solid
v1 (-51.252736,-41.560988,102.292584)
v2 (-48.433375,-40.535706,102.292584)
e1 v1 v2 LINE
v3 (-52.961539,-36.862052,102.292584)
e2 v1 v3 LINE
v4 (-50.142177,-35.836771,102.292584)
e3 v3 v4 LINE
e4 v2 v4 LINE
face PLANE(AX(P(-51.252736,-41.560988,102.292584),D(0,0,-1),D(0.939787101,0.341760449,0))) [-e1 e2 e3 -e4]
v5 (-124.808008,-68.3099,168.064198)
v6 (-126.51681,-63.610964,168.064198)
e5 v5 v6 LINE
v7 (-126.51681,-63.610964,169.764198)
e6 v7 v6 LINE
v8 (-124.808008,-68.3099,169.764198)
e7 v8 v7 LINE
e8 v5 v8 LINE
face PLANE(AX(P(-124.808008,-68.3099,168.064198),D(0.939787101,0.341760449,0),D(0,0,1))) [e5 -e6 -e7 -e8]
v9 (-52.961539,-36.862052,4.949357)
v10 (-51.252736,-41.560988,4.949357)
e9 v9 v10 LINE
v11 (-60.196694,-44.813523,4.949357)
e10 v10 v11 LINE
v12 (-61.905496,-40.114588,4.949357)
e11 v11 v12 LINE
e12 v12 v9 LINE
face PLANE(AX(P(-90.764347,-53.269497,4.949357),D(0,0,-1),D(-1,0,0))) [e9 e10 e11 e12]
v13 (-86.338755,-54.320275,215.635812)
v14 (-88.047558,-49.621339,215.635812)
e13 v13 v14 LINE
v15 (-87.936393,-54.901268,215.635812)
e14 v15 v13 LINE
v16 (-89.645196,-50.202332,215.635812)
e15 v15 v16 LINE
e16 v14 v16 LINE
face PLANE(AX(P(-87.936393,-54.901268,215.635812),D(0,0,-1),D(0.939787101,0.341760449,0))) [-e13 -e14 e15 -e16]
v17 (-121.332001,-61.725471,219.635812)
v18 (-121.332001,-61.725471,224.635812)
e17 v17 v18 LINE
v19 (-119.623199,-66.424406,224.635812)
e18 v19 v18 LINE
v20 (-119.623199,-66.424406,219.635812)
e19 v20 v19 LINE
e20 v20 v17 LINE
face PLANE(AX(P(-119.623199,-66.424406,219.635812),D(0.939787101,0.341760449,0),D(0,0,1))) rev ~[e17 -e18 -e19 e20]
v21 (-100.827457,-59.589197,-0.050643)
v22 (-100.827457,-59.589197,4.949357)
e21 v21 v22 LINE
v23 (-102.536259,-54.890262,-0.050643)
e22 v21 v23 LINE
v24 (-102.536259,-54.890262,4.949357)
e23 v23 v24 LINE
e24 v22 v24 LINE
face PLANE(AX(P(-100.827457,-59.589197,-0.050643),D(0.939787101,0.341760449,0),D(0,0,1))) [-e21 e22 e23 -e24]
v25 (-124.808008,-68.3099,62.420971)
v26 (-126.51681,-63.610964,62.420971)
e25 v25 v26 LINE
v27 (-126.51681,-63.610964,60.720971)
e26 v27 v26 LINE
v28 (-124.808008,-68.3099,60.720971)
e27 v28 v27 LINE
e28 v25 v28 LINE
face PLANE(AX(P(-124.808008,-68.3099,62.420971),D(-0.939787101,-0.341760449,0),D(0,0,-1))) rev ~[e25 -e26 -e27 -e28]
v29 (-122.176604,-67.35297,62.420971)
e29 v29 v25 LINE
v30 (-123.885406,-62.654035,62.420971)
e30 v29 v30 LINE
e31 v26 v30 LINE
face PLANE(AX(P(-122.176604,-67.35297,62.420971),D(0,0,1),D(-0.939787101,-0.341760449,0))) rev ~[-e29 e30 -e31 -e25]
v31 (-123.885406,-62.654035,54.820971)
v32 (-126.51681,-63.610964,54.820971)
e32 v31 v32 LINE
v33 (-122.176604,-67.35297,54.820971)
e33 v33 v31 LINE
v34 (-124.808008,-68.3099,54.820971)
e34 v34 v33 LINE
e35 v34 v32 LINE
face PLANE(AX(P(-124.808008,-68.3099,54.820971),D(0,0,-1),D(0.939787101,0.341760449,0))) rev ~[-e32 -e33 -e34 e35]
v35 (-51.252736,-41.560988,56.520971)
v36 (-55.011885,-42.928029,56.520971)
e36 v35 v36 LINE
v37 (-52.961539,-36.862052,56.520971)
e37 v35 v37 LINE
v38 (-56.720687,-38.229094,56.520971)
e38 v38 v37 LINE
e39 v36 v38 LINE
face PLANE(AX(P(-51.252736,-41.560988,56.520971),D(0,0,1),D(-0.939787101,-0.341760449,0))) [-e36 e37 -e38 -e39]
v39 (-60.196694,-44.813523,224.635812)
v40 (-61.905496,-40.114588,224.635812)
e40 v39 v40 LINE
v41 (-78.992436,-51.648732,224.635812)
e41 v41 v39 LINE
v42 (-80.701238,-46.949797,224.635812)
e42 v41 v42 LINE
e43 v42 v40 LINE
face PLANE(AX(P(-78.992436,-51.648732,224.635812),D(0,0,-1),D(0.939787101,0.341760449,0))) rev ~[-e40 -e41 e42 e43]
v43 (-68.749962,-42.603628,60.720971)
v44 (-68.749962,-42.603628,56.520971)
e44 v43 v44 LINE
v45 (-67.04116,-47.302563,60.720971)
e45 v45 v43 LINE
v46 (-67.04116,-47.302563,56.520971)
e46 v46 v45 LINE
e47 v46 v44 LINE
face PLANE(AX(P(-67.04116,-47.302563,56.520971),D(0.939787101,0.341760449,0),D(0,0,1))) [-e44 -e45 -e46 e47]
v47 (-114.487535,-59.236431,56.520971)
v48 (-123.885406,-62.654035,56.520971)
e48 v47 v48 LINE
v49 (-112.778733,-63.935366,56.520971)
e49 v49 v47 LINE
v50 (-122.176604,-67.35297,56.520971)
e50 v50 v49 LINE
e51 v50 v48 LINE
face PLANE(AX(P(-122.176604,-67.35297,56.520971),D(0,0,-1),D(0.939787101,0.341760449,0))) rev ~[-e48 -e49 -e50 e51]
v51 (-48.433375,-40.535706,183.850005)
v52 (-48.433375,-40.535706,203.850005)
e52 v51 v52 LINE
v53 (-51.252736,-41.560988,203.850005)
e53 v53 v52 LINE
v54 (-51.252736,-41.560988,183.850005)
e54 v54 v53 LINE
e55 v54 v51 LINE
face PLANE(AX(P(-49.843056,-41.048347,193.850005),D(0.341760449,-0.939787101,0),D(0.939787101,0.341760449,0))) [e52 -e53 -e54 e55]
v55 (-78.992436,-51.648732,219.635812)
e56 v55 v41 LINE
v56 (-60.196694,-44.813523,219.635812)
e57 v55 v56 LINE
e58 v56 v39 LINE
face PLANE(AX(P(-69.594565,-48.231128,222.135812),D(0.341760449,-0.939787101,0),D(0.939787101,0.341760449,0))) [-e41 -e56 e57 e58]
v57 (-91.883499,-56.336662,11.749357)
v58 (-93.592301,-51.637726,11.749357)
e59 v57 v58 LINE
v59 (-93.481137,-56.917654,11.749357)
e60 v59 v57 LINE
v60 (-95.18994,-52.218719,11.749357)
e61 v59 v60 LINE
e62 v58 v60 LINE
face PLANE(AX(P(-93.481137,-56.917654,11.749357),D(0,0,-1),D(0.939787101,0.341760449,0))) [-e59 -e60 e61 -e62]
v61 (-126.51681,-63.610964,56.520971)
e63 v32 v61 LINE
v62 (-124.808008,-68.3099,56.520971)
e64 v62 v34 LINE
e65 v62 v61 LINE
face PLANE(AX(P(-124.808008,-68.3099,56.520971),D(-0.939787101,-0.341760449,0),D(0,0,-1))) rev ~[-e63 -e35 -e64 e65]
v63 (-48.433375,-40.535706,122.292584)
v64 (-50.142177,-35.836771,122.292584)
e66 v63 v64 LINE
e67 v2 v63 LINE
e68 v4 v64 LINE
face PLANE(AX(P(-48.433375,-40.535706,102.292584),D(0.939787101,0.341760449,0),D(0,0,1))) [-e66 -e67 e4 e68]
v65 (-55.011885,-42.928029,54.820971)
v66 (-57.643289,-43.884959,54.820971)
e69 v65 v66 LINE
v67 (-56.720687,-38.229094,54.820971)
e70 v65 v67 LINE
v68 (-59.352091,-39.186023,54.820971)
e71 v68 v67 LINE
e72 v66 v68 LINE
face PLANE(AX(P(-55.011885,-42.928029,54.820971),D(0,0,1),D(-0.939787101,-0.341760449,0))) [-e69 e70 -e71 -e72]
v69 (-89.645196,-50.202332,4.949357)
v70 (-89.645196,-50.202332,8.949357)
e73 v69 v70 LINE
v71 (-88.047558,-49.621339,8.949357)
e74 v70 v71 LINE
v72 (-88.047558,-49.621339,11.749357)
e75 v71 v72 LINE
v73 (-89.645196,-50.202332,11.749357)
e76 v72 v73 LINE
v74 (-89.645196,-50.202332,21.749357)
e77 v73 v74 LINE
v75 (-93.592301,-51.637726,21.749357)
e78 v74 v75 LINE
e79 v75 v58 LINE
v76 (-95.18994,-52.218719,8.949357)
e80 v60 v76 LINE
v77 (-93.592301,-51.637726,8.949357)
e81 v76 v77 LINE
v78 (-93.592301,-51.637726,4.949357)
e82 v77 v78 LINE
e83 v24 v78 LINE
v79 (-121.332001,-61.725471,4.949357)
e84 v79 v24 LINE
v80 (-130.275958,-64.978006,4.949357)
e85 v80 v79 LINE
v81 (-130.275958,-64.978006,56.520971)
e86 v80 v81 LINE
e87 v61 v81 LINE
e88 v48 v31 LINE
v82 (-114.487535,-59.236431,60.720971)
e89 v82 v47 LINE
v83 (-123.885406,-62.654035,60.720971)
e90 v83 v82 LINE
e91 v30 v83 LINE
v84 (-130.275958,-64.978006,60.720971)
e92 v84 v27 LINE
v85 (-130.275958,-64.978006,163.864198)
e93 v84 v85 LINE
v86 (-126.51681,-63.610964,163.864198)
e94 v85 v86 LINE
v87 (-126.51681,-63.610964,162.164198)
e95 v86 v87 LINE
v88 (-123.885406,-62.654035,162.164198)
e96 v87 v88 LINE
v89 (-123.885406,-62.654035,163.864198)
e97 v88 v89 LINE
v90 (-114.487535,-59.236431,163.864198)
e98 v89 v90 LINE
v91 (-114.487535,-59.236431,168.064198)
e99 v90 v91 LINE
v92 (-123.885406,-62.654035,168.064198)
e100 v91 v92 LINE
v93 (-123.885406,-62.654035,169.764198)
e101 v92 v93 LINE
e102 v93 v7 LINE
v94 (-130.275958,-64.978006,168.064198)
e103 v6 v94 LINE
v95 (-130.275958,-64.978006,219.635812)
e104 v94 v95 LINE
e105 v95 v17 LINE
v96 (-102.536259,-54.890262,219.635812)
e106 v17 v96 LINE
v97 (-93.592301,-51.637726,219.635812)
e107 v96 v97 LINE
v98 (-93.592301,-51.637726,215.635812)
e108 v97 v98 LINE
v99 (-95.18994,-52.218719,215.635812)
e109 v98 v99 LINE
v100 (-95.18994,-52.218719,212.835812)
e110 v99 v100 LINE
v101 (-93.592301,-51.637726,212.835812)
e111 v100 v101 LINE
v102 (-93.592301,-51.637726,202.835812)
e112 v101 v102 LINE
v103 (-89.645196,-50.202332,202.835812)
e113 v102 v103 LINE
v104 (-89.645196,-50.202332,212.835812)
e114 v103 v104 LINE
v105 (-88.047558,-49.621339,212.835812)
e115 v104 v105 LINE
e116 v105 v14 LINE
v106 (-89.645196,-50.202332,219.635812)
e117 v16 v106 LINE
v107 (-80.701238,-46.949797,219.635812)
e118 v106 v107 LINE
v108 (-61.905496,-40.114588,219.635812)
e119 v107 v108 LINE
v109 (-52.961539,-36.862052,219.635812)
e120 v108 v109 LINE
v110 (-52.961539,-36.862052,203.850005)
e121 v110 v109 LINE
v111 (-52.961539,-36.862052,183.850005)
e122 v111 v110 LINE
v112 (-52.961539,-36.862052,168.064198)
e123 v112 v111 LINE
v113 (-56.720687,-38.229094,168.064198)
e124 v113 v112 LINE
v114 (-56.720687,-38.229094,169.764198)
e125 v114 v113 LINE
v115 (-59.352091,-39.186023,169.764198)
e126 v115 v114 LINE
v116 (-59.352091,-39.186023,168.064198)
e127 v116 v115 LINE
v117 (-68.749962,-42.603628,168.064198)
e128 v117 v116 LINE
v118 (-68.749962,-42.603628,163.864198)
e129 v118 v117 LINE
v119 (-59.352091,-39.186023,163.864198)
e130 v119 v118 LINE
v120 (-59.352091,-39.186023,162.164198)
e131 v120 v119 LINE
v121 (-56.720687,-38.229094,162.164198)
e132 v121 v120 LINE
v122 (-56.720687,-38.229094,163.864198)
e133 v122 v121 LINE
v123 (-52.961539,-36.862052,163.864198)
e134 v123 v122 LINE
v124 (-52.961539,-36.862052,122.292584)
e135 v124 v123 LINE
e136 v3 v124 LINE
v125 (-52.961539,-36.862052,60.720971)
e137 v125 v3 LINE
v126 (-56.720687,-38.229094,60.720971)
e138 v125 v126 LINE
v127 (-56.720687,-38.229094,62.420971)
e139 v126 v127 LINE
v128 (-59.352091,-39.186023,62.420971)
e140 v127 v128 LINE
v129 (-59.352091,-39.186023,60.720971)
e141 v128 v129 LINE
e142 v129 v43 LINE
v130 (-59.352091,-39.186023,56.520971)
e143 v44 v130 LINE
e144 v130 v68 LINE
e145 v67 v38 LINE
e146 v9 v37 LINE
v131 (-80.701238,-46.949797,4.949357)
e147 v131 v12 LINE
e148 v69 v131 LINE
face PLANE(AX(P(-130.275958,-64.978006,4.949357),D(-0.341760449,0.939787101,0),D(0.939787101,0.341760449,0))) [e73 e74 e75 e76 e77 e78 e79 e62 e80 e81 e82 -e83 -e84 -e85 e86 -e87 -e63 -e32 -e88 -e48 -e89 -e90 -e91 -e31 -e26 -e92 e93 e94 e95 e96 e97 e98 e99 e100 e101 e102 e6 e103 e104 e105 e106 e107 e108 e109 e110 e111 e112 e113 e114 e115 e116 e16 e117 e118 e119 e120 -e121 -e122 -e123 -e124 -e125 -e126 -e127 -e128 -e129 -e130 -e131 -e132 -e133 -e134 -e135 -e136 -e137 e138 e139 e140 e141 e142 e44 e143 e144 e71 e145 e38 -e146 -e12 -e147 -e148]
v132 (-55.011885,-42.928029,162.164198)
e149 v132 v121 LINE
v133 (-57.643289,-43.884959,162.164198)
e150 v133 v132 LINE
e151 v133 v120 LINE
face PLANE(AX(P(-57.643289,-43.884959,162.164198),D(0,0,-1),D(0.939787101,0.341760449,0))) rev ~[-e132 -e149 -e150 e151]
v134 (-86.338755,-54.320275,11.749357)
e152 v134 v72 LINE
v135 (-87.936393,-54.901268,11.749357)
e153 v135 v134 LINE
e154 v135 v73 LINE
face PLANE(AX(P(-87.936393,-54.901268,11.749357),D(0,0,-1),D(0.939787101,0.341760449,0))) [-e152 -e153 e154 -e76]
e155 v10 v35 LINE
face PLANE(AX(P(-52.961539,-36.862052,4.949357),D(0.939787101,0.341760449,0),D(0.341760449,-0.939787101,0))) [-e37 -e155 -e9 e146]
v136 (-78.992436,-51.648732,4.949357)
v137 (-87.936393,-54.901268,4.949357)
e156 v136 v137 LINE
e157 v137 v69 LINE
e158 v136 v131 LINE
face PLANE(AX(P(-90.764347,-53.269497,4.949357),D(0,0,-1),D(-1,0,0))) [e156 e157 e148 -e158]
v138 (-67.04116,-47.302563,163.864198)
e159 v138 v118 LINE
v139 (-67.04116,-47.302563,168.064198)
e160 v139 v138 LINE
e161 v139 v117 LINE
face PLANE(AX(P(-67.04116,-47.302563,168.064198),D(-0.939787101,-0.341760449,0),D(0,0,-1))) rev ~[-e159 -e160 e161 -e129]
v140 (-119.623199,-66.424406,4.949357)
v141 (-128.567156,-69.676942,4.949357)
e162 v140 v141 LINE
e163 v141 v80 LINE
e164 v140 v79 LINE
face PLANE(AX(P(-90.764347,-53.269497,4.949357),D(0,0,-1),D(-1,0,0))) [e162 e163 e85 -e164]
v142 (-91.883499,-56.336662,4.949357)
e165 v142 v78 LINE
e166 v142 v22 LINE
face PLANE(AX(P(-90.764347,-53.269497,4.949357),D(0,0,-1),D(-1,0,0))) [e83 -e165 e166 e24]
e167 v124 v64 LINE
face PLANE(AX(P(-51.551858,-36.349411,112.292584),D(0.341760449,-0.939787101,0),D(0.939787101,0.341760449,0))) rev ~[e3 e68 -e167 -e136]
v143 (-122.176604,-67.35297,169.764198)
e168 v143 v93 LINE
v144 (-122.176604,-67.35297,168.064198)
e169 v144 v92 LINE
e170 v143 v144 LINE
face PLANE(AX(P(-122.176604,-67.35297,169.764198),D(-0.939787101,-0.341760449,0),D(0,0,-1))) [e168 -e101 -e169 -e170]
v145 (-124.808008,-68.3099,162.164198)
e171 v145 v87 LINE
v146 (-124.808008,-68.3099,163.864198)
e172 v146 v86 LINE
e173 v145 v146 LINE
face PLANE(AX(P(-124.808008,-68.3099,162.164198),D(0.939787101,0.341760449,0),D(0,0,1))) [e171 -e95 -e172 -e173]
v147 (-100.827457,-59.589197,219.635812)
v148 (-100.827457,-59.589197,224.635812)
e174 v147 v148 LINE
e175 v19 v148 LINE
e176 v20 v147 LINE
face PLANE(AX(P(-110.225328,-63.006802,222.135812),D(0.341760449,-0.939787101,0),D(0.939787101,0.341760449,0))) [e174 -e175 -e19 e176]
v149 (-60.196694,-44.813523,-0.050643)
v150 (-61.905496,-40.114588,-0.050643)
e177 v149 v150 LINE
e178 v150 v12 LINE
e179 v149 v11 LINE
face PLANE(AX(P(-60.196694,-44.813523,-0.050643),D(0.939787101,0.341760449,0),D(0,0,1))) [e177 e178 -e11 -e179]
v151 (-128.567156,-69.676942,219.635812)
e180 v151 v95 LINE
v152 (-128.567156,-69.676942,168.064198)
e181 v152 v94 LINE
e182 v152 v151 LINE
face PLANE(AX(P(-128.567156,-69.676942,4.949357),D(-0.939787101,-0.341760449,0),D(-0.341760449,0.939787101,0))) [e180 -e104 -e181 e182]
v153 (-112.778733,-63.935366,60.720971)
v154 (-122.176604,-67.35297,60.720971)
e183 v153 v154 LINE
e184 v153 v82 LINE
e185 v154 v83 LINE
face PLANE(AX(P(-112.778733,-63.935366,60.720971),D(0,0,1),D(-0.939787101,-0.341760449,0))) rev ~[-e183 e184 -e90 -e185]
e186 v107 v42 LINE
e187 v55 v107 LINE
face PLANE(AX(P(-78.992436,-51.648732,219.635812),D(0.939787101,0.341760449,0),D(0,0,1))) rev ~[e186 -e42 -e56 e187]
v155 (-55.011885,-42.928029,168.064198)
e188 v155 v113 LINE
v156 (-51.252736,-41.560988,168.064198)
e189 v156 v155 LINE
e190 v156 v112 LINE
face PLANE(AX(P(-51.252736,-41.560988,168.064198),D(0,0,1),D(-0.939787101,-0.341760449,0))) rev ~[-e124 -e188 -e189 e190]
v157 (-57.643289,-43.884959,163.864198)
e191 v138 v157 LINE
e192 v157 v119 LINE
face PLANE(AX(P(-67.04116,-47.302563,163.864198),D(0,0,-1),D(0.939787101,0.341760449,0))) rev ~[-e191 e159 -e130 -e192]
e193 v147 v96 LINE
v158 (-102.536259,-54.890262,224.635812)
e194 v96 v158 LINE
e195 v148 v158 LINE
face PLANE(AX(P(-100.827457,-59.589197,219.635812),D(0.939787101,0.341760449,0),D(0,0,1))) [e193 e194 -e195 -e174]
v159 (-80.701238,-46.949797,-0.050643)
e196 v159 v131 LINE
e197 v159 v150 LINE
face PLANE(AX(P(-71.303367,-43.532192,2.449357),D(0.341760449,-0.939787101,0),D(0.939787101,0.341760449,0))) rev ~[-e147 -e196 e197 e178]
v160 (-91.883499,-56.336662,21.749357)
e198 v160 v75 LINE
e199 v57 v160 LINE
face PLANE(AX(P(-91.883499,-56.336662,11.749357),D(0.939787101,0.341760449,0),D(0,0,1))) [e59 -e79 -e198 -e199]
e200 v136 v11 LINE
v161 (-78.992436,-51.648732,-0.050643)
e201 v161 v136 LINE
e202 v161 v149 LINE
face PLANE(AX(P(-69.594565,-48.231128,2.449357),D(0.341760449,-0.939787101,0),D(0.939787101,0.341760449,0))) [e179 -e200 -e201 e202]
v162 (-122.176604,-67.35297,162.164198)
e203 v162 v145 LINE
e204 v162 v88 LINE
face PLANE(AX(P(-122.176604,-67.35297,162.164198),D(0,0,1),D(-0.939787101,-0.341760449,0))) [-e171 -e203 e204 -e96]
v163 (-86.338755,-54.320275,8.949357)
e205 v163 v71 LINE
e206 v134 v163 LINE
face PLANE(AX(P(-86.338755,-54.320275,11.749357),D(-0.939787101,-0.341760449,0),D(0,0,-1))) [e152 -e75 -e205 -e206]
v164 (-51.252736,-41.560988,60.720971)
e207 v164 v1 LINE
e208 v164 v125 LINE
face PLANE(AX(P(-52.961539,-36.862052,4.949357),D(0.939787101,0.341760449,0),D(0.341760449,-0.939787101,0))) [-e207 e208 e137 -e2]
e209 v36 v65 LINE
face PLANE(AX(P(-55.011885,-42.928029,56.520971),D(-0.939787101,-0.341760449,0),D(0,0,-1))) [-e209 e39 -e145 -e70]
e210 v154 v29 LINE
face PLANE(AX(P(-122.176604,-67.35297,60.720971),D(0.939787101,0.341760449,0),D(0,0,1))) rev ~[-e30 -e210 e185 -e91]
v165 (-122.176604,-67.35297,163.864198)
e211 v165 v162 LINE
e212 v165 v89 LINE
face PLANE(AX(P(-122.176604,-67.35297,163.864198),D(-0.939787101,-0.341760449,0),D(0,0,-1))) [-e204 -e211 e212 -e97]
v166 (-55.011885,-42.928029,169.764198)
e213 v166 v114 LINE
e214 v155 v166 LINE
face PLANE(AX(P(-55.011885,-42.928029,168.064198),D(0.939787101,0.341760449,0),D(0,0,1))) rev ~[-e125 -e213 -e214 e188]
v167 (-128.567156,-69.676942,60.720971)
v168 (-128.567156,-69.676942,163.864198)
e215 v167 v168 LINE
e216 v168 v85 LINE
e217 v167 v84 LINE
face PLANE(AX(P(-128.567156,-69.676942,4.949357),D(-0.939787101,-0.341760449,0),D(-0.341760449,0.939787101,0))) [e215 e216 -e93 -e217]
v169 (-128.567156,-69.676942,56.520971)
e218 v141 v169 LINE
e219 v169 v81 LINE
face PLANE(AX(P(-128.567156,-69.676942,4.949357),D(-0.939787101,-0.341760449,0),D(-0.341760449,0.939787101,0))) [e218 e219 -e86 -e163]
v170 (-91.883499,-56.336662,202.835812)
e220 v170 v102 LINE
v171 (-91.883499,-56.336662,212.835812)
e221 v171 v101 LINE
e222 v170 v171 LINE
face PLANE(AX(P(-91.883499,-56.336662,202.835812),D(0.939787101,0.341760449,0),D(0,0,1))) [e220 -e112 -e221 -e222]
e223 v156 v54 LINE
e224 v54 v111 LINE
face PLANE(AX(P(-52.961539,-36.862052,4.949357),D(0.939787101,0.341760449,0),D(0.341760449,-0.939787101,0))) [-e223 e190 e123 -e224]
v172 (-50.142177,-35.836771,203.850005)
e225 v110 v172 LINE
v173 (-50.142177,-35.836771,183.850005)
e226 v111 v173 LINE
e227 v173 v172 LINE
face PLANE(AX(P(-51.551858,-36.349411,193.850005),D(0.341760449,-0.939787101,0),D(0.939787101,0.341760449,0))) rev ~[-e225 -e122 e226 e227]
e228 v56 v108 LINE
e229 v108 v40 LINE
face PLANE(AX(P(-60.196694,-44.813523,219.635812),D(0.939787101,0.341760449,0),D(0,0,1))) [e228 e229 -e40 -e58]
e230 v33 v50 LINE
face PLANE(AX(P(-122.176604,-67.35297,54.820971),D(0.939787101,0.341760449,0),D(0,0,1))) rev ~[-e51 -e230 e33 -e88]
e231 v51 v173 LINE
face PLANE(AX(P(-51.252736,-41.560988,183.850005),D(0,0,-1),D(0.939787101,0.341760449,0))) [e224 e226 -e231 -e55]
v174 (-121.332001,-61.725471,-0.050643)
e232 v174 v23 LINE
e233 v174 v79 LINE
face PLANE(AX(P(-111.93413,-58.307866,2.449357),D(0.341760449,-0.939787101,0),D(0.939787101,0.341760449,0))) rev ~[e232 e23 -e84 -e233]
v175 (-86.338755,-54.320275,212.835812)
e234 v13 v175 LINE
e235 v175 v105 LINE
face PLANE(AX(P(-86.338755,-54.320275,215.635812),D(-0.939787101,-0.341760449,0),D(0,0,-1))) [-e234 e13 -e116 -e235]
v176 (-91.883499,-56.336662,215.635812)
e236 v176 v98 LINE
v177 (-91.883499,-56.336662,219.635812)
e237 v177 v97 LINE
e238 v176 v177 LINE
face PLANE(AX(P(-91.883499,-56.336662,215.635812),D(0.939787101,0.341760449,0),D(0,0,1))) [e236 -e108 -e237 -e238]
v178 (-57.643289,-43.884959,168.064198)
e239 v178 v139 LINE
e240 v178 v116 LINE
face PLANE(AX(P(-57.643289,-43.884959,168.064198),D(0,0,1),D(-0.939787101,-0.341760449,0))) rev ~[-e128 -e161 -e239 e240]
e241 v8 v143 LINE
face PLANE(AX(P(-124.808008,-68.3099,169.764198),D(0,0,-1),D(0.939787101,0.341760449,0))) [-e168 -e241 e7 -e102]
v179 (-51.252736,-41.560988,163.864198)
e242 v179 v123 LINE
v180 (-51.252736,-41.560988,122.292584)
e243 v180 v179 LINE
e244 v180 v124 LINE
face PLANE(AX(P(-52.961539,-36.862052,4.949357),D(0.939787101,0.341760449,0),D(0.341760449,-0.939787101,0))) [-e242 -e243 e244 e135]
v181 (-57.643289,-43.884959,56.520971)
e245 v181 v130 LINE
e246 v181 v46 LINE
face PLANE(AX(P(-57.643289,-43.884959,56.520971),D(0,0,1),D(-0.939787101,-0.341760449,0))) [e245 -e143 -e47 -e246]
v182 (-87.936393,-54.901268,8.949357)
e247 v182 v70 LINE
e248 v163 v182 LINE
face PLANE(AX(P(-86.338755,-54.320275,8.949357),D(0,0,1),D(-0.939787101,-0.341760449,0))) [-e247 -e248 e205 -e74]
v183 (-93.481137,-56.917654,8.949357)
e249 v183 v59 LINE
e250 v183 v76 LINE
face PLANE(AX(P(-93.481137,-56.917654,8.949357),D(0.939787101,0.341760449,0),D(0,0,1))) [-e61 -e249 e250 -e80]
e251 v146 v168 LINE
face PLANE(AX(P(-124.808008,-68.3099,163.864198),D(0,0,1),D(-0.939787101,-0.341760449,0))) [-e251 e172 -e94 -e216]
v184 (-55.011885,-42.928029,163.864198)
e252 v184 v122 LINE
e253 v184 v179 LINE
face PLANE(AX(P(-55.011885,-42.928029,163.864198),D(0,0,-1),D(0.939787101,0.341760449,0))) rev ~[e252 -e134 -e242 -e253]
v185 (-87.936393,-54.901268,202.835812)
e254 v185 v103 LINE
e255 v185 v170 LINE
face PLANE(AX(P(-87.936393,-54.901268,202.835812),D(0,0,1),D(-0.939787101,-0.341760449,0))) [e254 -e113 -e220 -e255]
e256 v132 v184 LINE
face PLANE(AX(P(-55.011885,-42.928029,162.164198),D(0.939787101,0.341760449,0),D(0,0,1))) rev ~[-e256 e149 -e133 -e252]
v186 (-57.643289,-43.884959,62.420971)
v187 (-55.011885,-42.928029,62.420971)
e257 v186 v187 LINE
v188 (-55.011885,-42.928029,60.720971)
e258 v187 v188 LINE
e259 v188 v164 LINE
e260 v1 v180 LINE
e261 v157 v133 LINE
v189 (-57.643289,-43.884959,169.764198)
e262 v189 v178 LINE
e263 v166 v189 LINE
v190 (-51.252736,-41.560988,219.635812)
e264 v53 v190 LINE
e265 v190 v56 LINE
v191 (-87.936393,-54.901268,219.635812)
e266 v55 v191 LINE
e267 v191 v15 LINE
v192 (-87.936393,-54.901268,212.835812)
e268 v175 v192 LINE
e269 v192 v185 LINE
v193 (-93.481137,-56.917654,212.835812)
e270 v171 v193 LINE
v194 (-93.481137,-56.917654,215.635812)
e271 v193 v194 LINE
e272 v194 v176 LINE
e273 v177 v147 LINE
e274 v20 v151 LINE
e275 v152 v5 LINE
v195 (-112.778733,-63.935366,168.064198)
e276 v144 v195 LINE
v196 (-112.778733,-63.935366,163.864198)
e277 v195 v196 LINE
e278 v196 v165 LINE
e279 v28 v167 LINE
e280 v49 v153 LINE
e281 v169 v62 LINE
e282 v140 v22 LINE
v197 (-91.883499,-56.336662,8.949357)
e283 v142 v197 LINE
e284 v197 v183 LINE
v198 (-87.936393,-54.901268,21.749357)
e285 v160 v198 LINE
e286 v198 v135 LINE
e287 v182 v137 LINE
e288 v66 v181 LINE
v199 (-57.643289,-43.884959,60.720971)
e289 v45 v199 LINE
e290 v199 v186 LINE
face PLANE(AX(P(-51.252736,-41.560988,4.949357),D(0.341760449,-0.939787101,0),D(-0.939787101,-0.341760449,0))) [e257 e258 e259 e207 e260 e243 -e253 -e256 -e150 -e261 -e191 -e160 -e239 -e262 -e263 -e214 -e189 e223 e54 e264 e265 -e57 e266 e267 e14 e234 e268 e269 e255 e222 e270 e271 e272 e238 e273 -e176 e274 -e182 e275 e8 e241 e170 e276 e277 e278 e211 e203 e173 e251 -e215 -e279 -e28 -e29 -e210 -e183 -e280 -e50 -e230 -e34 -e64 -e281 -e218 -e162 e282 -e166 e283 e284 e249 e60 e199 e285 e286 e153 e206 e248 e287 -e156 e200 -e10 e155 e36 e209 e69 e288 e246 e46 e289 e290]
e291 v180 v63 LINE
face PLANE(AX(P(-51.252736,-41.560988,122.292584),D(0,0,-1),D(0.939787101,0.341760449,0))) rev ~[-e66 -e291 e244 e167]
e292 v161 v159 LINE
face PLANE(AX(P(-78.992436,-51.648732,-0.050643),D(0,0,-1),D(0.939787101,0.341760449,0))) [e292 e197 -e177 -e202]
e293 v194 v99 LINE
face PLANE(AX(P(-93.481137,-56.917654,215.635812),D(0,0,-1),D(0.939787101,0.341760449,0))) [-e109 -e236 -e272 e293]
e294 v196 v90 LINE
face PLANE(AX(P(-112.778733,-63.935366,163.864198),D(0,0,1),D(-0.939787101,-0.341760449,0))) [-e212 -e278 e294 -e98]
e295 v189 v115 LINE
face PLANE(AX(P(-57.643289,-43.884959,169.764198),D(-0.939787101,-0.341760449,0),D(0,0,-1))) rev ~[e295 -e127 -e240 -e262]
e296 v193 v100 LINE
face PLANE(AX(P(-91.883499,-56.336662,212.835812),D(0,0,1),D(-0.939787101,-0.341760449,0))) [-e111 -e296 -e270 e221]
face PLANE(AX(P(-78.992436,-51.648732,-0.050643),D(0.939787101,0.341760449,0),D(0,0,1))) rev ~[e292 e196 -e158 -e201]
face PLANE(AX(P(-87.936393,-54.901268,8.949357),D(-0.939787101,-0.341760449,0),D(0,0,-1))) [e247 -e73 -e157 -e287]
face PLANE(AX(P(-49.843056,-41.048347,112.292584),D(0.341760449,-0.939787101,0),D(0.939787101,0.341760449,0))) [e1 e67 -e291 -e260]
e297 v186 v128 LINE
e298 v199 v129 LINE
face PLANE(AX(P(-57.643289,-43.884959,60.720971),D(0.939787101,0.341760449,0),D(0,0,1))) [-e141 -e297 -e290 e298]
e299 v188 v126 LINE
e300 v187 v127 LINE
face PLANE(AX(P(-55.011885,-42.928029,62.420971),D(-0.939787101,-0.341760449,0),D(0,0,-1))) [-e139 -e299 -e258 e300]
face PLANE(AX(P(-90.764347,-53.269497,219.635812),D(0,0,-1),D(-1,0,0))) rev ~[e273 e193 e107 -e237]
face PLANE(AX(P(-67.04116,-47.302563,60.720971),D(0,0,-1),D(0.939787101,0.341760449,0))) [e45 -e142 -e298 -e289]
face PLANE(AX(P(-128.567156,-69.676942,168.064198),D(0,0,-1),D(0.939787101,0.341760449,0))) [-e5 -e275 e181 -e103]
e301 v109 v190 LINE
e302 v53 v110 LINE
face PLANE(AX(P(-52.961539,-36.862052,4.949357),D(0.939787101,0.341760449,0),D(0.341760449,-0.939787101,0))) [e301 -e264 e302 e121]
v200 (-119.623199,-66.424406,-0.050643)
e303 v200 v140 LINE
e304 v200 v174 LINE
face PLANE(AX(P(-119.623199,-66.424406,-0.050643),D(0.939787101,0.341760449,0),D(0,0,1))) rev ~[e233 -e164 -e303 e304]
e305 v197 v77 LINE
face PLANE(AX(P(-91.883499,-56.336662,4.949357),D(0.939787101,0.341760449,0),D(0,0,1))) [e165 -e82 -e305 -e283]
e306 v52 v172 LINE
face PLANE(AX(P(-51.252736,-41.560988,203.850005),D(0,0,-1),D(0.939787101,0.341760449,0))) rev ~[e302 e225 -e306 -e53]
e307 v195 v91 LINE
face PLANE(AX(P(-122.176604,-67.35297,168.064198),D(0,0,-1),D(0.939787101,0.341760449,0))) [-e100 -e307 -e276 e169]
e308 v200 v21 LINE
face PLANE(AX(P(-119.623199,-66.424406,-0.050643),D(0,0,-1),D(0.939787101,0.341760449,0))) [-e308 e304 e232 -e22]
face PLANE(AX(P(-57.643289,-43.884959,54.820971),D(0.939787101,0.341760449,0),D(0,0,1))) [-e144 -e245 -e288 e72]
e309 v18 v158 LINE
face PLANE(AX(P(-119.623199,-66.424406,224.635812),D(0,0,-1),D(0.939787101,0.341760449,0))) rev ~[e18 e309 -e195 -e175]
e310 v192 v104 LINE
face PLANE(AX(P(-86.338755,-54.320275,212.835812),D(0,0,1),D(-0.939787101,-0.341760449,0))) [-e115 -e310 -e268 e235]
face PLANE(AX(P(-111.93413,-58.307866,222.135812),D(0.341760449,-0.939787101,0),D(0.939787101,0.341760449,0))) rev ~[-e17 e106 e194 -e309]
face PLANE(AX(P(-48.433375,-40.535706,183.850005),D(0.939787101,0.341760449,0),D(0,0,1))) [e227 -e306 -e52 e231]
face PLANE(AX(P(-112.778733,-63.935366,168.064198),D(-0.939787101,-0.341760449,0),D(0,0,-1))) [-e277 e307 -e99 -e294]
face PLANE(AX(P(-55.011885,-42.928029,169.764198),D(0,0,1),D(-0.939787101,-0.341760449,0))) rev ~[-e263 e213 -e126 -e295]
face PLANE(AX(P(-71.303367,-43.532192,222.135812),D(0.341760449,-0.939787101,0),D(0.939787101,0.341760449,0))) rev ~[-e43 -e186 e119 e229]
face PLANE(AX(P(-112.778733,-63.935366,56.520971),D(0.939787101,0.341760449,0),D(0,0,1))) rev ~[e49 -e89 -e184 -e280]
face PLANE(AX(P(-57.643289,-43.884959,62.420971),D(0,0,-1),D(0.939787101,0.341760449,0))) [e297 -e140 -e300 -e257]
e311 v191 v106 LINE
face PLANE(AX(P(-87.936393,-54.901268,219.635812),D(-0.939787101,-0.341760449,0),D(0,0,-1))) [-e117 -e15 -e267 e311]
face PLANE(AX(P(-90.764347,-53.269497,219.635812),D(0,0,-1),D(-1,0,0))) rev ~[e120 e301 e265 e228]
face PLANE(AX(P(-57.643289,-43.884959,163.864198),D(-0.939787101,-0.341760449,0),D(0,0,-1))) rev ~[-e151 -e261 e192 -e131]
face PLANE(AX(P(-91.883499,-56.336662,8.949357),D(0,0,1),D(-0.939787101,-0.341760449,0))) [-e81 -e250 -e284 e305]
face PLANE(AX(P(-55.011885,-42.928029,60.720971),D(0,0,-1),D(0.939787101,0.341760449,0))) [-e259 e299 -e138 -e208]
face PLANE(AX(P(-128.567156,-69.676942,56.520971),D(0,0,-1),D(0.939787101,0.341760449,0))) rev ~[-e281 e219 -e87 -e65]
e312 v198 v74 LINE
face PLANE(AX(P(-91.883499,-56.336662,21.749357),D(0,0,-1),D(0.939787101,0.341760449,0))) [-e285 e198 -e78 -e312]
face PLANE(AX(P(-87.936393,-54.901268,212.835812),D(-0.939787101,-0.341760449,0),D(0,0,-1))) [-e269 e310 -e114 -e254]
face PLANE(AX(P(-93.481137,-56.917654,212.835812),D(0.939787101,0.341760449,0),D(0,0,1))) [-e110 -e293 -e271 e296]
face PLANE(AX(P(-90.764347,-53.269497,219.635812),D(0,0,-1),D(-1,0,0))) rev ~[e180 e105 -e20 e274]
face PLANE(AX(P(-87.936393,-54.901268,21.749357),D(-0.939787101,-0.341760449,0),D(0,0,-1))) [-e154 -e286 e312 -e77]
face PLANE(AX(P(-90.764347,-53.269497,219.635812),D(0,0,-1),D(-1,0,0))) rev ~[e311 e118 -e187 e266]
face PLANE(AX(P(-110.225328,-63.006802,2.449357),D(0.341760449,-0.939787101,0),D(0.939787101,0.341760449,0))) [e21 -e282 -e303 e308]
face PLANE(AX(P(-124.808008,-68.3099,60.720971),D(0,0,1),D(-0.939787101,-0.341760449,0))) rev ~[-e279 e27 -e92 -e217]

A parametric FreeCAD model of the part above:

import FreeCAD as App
import Part
import Sketcher
from FreeCAD import Vector

doc = App.newDocument("Part")
body = doc.addObject("PartDesign::Body", "Body")

sketch1 = body.newObject("Sketcher::SketchObject", "Sketch")
sketch1.AttachmentSupport = (doc.getObject("XY_Plane"), [""])
sketch1.MapMode = "FlatFace"
sketch1.AttachmentOffset = App.Placement(Vector(0, 0, 4.949357), App.Rotation())
sketch1.addGeometry([
    Part.LineSegment(Vector(-51, -42, 0), Vector(-53, -37, 0)),
    Part.LineSegment(Vector(-53, -37, 0), Vector(-130, -65, 0)),
    Part.LineSegment(Vector(-130, -65, 0), Vector(-129, -70, 0)),
    Part.LineSegment(Vector(-129, -70, 0), Vector(-51, -42, 0)),
], False)
sketch1.addConstraint([
    Sketcher.Constraint("Coincident", 0, 2, 1, 1),
    Sketcher.Constraint("Coincident", 1, 2, 2, 1),
    Sketcher.Constraint("Coincident", 2, 2, 3, 1),
    Sketcher.Constraint("Coincident", 3, 2, 0, 1),
    Sketcher.Constraint("Perpendicular", 0, 1),
    Sketcher.Constraint("Perpendicular", 1, 2),
    Sketcher.Constraint("Perpendicular", 2, 3),
    Sketcher.Constraint("Distance", 0, 5.0),
    Sketcher.Constraint("DistanceX", 0, 2, -1, 1, 52.961539),
    Sketcher.Constraint("DistanceX", 1, 2, -1, 1, 130.275958),
    Sketcher.Constraint("DistanceY", 2, 2, -1, 1, 69.676942),
    Sketcher.Constraint("DistanceY", 2, 2, 0, 2, 32.814889),
])
pad1 = body.newObject("PartDesign::Pad", "Pad")
pad1.Profile = sketch1
pad1.Length = 214.686455

sketch2 = body.newObject("Sketcher::SketchObject", "Sketch001")
sketch2.Placement = App.Placement(Vector(7.362314, -20.245196, 0), App.Rotation(Vector(-0.939787101, -0.341760449, 0), Vector(0, 0, -1), Vector(0.341760449, -0.939787101, 0), "ZXY"))
sketch2.addGeometry([
    Part.LineSegment(Vector(105.6, -4.9, 0), Vector(101.4, -4.9, 0)),
    Part.LineSegment(Vector(101.4, -4.9, 0), Vector(101.4, -8.9, 0)),
    Part.LineSegment(Vector(101.4, -8.9, 0), Vector(99.7, -8.9, 0)),
    Part.LineSegment(Vector(99.7, -8.9, 0), Vector(99.7, -11.7, 0)),
    Part.LineSegment(Vector(99.7, -11.7, 0), Vector(101.4, -11.7, 0)),
    Part.LineSegment(Vector(101.4, -11.7, 0), Vector(101.4, -21.7, 0)),
    Part.LineSegment(Vector(101.4, -21.7, 0), Vector(105.6, -21.7, 0)),
    Part.LineSegment(Vector(105.6, -21.7, 0), Vector(105.6, -11.7, 0)),
    Part.LineSegment(Vector(105.6, -11.7, 0), Vector(107.3, -11.7, 0)),
    Part.LineSegment(Vector(107.3, -11.7, 0), Vector(107.3, -8.9, 0)),
    Part.LineSegment(Vector(107.3, -8.9, 0), Vector(105.6, -8.9, 0)),
    Part.LineSegment(Vector(105.6, -8.9, 0), Vector(105.6, -4.9, 0)),
    Part.LineSegment(Vector(62.4, -56.5, 0), Vector(62.4, -60.7, 0)),
    Part.LineSegment(Vector(62.4, -60.7, 0), Vector(66.4, -60.7, 0)),
    Part.LineSegment(Vector(66.4, -60.7, 0), Vector(66.4, -62.4, 0)),
    Part.LineSegment(Vector(66.4, -62.4, 0), Vector(69.2, -62.4, 0)),
    Part.LineSegment(Vector(69.2, -62.4, 0), Vector(69.2, -60.7, 0)),
    Part.LineSegment(Vector(69.2, -60.7, 0), Vector(79.2, -60.7, 0)),
    Part.LineSegment(Vector(79.2, -60.7, 0), Vector(79.2, -56.5, 0)),
    Part.LineSegment(Vector(79.2, -56.5, 0), Vector(69.2, -56.5, 0)),
    Part.LineSegment(Vector(69.2, -56.5, 0), Vector(69.2, -54.8, 0)),
    Part.LineSegment(Vector(69.2, -54.8, 0), Vector(66.4, -54.8, 0)),
    Part.LineSegment(Vector(66.4, -54.8, 0), Vector(66.4, -56.5, 0)),
    Part.LineSegment(Vector(66.4, -56.5, 0), Vector(62.4, -56.5, 0)),
    Part.LineSegment(Vector(101.4, -219.6, 0), Vector(105.6, -219.6, 0)),
    Part.LineSegment(Vector(105.6, -219.6, 0), Vector(105.6, -215.6, 0)),
    Part.LineSegment(Vector(105.6, -215.6, 0), Vector(107.3, -215.6, 0)),
    Part.LineSegment(Vector(107.3, -215.6, 0), Vector(107.3, -212.8, 0)),
    Part.LineSegment(Vector(107.3, -212.8, 0), Vector(105.6, -212.8, 0)),
    Part.LineSegment(Vector(105.6, -212.8, 0), Vector(105.6, -202.8, 0)),
    Part.LineSegment(Vector(105.6, -202.8, 0), Vector(101.4, -202.8, 0)),
    Part.LineSegment(Vector(101.4, -202.8, 0), Vector(101.4, -212.8, 0)),
    Part.LineSegment(Vector(101.4, -212.8, 0), Vector(99.7, -212.8, 0)),
    Part.LineSegment(Vector(99.7, -212.8, 0), Vector(99.7, -215.6, 0)),
    Part.LineSegment(Vector(99.7, -215.6, 0), Vector(101.4, -215.6, 0)),
    Part.LineSegment(Vector(101.4, -215.6, 0), Vector(101.4, -219.6, 0)),
    Part.LineSegment(Vector(66.4, -168.1, 0), Vector(66.4, -169.8, 0)),
    Part.LineSegment(Vector(66.4, -169.8, 0), Vector(69.2, -169.8, 0)),
    Part.LineSegment(Vector(69.2, -169.8, 0), Vector(69.2, -168.1, 0)),
    Part.LineSegment(Vector(69.2, -168.1, 0), Vector(79.2, -168.1, 0)),
    Part.LineSegment(Vector(79.2, -168.1, 0), Vector(79.2, -163.9, 0)),
    Part.LineSegment(Vector(79.2, -163.9, 0), Vector(69.2, -163.9, 0)),
    Part.LineSegment(Vector(69.2, -163.9, 0), Vector(69.2, -162.2, 0)),
    Part.LineSegment(Vector(69.2, -162.2, 0), Vector(66.4, -162.2, 0)),
    Part.LineSegment(Vector(66.4, -162.2, 0), Vector(66.4, -163.9, 0)),
    Part.LineSegment(Vector(66.4, -163.9, 0), Vector(62.4, -163.9, 0)),
    Part.LineSegment(Vector(62.4, -163.9, 0), Vector(62.4, -168.1, 0)),
    Part.LineSegment(Vector(62.4, -168.1, 0), Vector(66.4, -168.1, 0)),
    Part.LineSegment(Vector(144.6, -168.1, 0), Vector(144.6, -163.9, 0)),
    Part.LineSegment(Vector(144.6, -163.9, 0), Vector(140.6, -163.9, 0)),
    Part.LineSegment(Vector(140.6, -163.9, 0), Vector(140.6, -162.2, 0)),
    Part.LineSegment(Vector(140.6, -162.2, 0), Vector(137.8, -162.2, 0)),
    Part.LineSegment(Vector(137.8, -162.2, 0), Vector(137.8, -163.9, 0)),
    Part.LineSegment(Vector(137.8, -163.9, 0), Vector(127.8, -163.9, 0)),
    Part.LineSegment(Vector(127.8, -163.9, 0), Vector(127.8, -168.1, 0)),
    Part.LineSegment(Vector(127.8, -168.1, 0), Vector(137.8, -168.1, 0)),
    Part.LineSegment(Vector(137.8, -168.1, 0), Vector(137.8, -169.8, 0)),
    Part.LineSegment(Vector(137.8, -169.8, 0), Vector(140.6, -169.8, 0)),
    Part.LineSegment(Vector(140.6, -169.8, 0), Vector(140.6, -168.1, 0)),
    Part.LineSegment(Vector(140.6, -168.1, 0), Vector(144.6, -168.1, 0)),
    Part.LineSegment(Vector(140.6, -56.5, 0), Vector(140.6, -54.8, 0)),
    Part.LineSegment(Vector(140.6, -54.8, 0), Vector(137.8, -54.8, 0)),
    Part.LineSegment(Vector(137.8, -54.8, 0), Vector(137.8, -56.5, 0)),
    Part.LineSegment(Vector(137.8, -56.5, 0), Vector(127.8, -56.5, 0)),
    Part.LineSegment(Vector(127.8, -56.5, 0), Vector(127.8, -60.7, 0)),
    Part.LineSegment(Vector(127.8, -60.7, 0), Vector(137.8, -60.7, 0)),
    Part.LineSegment(Vector(137.8, -60.7, 0), Vector(137.8, -62.4, 0)),
    Part.LineSegment(Vector(137.8, -62.4, 0), Vector(140.6, -62.4, 0)),
    Part.LineSegment(Vector(140.6, -62.4, 0), Vector(140.6, -60.7, 0)),
    Part.LineSegment(Vector(140.6, -60.7, 0), Vector(144.6, -60.7, 0)),
    Part.LineSegment(Vector(144.6, -60.7, 0), Vector(144.6, -56.5, 0)),
    Part.LineSegment(Vector(144.6, -56.5, 0), Vector(140.6, -56.5, 0)),
], False)
sketch2.addConstraint([
    Sketcher.Constraint("Coincident", 0, 2, 1, 1),
    Sketcher.Constraint("Coincident", 1, 2, 2, 1),
    Sketcher.Constraint("Coincident", 2, 2, 3, 1),
    Sketcher.Constraint("Coincident", 3, 2, 4, 1),
    Sketcher.Constraint("Coincident", 4, 2, 5, 1),
    Sketcher.Constraint("Coincident", 5, 2, 6, 1),
    Sketcher.Constraint("Coincident", 6, 2, 7, 1),
    Sketcher.Constraint("Coincident", 7, 2, 8, 1),
    Sketcher.Constraint("Coincident", 8, 2, 9, 1),
    Sketcher.Constraint("Coincident", 9, 2, 10, 1),
    Sketcher.Constraint("Coincident", 10, 2, 11, 1),
    Sketcher.Constraint("Coincident", 11, 2, 0, 1),
    Sketcher.Constraint("Coincident", 12, 2, 13, 1),
    Sketcher.Constraint("Coincident", 13, 2, 14, 1),
    Sketcher.Constraint("Coincident", 14, 2, 15, 1),
    Sketcher.Constraint("Coincident", 15, 2, 16, 1),
    Sketcher.Constraint("Coincident", 16, 2, 17, 1),
    Sketcher.Constraint("Coincident", 17, 2, 18, 1),
    Sketcher.Constraint("Coincident", 18, 2, 19, 1),
    Sketcher.Constraint("Coincident", 19, 2, 20, 1),
    Sketcher.Constraint("Coincident", 20, 2, 21, 1),
    Sketcher.Constraint("Coincident", 21, 2, 22, 1),
    Sketcher.Constraint("Coincident", 22, 2, 23, 1),
    Sketcher.Constraint("Coincident", 23, 2, 12, 1),
    Sketcher.Constraint("Coincident", 24, 2, 25, 1),
    Sketcher.Constraint("Coincident", 25, 2, 26, 1),
    Sketcher.Constraint("Coincident", 26, 2, 27, 1),
    Sketcher.Constraint("Coincident", 27, 2, 28, 1),
    Sketcher.Constraint("Coincident", 28, 2, 29, 1),
    Sketcher.Constraint("Coincident", 29, 2, 30, 1),
    Sketcher.Constraint("Coincident", 30, 2, 31, 1),
    Sketcher.Constraint("Coincident", 31, 2, 32, 1),
    Sketcher.Constraint("Coincident", 32, 2, 33, 1),
    Sketcher.Constraint("Coincident", 33, 2, 34, 1),
    Sketcher.Constraint("Coincident", 34, 2, 35, 1),
    Sketcher.Constraint("Coincident", 35, 2, 24, 1),
    Sketcher.Constraint("Coincident", 36, 2, 37, 1),
    Sketcher.Constraint("Coincident", 37, 2, 38, 1),
    Sketcher.Constraint("Coincident", 38, 2, 39, 1),
    Sketcher.Constraint("Coincident", 39, 2, 40, 1),
    Sketcher.Constraint("Coincident", 40, 2, 41, 1),
    Sketcher.Constraint("Coincident", 41, 2, 42, 1),
    Sketcher.Constraint("Coincident", 42, 2, 43, 1),
    Sketcher.Constraint("Coincident", 43, 2, 44, 1),
    Sketcher.Constraint("Coincident", 44, 2, 45, 1),
    Sketcher.Constraint("Coincident", 45, 2, 46, 1),
    Sketcher.Constraint("Coincident", 46, 2, 47, 1),
    Sketcher.Constraint("Coincident", 47, 2, 36, 1),
    Sketcher.Constraint("Coincident", 48, 2, 49, 1),
    Sketcher.Constraint("Coincident", 49, 2, 50, 1),
    Sketcher.Constraint("Coincident", 50, 2, 51, 1),
    Sketcher.Constraint("Coincident", 51, 2, 52, 1),
    Sketcher.Constraint("Coincident", 52, 2, 53, 1),
    Sketcher.Constraint("Coincident", 53, 2, 54, 1),
    Sketcher.Constraint("Coincident", 54, 2, 55, 1),
    Sketcher.Constraint("Coincident", 55, 2, 56, 1),
    Sketcher.Constraint("Coincident", 56, 2, 57, 1),
    Sketcher.Constraint("Coincident", 57, 2, 58, 1),
    Sketcher.Constraint("Coincident", 58, 2, 59, 1),
    Sketcher.Constraint("Coincident", 59, 2, 48, 1),
    Sketcher.Constraint("Coincident", 60, 2, 61, 1),
    Sketcher.Constraint("Coincident", 61, 2, 62, 1),
    Sketcher.Constraint("Coincident", 62, 2, 63, 1),
    Sketcher.Constraint("Coincident", 63, 2, 64, 1),
    Sketcher.Constraint("Coincident", 64, 2, 65, 1),
    Sketcher.Constraint("Coincident", 65, 2, 66, 1),
    Sketcher.Constraint("Coincident", 66, 2, 67, 1),
    Sketcher.Constraint("Coincident", 67, 2, 68, 1),
    Sketcher.Constraint("Coincident", 68, 2, 69, 1),
    Sketcher.Constraint("Coincident", 69, 2, 70, 1),
    Sketcher.Constraint("Coincident", 70, 2, 71, 1),
    Sketcher.Constraint("Coincident", 71, 2, 60, 1),
    Sketcher.Constraint("Horizontal", 0),
    Sketcher.Constraint("Vertical", 1),
    Sketcher.Constraint("Horizontal", 2),
    Sketcher.Constraint("Vertical", 3),
    Sketcher.Constraint("Horizontal", 4),
    Sketcher.Constraint("Vertical", 5),
    Sketcher.Constraint("Horizontal", 6),
    Sketcher.Constraint("Vertical", 7),
    Sketcher.Constraint("Horizontal", 8),
    Sketcher.Constraint("Vertical", 9),
    Sketcher.Constraint("Horizontal", 10),
    Sketcher.Constraint("Vertical", 11),
    Sketcher.Constraint("Vertical", 12),
    Sketcher.Constraint("Horizontal", 13),
    Sketcher.Constraint("Vertical", 14),
    Sketcher.Constraint("Horizontal", 15),
    Sketcher.Constraint("Vertical", 16),
    Sketcher.Constraint("Horizontal", 17),
    Sketcher.Constraint("Vertical", 18),
    Sketcher.Constraint("Horizontal", 19),
    Sketcher.Constraint("Vertical", 20),
    Sketcher.Constraint("Horizontal", 21),
    Sketcher.Constraint("Vertical", 22),
    Sketcher.Constraint("Horizontal", 23),
    Sketcher.Constraint("Horizontal", 24),
    Sketcher.Constraint("Vertical", 25),
    Sketcher.Constraint("Horizontal", 26),
    Sketcher.Constraint("Vertical", 27),
    Sketcher.Constraint("Horizontal", 28),
    Sketcher.Constraint("Vertical", 29),
    Sketcher.Constraint("Horizontal", 30),
    Sketcher.Constraint("Vertical", 31),
    Sketcher.Constraint("Horizontal", 32),
    Sketcher.Constraint("Vertical", 33),
    Sketcher.Constraint("Horizontal", 34),
    Sketcher.Constraint("Vertical", 35),
    Sketcher.Constraint("Vertical", 36),
    Sketcher.Constraint("Horizontal", 37),
    Sketcher.Constraint("Vertical", 38),
    Sketcher.Constraint("Horizontal", 39),
    Sketcher.Constraint("Vertical", 40),
    Sketcher.Constraint("Horizontal", 41),
    Sketcher.Constraint("Vertical", 42),
    Sketcher.Constraint("Horizontal", 43),
    Sketcher.Constraint("Vertical", 44),
    Sketcher.Constraint("Horizontal", 45),
    Sketcher.Constraint("Vertical", 46),
    Sketcher.Constraint("Horizontal", 47),
    Sketcher.Constraint("Vertical", 48),
    Sketcher.Constraint("Horizontal", 49),
    Sketcher.Constraint("Vertical", 50),
    Sketcher.Constraint("Horizontal", 51),
    Sketcher.Constraint("Vertical", 52),
    Sketcher.Constraint("Horizontal", 53),
    Sketcher.Constraint("Vertical", 54),
    Sketcher.Constraint("Horizontal", 55),
    Sketcher.Constraint("Vertical", 56),
    Sketcher.Constraint("Horizontal", 57),
    Sketcher.Constraint("Vertical", 58),
    Sketcher.Constraint("Horizontal", 59),
    Sketcher.Constraint("Vertical", 60),
    Sketcher.Constraint("Horizontal", 61),
    Sketcher.Constraint("Vertical", 62),
    Sketcher.Constraint("Horizontal", 63),
    Sketcher.Constraint("Vertical", 64),
    Sketcher.Constraint("Horizontal", 65),
    Sketcher.Constraint("Vertical", 66),
    Sketcher.Constraint("Horizontal", 67),
    Sketcher.Constraint("Vertical", 68),
    Sketcher.Constraint("Horizontal", 69),
    Sketcher.Constraint("Vertical", 70),
    Sketcher.Constraint("Horizontal", 71),
    Sketcher.Constraint("Horizontal", 4, 2, 7, 2),
    Sketcher.Constraint("Horizontal", 2, 2, 9, 2),
    Sketcher.Constraint("Horizontal", 13, 2, 16, 2),
    Sketcher.Constraint("Horizontal", 19, 2, 22, 2),
    Sketcher.Constraint("Horizontal", 28, 2, 31, 2),
    Sketcher.Constraint("Horizontal", 26, 2, 33, 2),
    Sketcher.Constraint("Horizontal", 41, 2, 44, 2),
    Sketcher.Constraint("Horizontal", 39, 2, 46, 2),
    Sketcher.Constraint("Horizontal", 45, 2, 48, 2),
    Sketcher.Constraint("Horizontal", 43, 2, 50, 2),
    Sketcher.Constraint("Horizontal", 49, 2, 52, 2),
    Sketcher.Constraint("Horizontal", 47, 2, 54, 2),
    Sketcher.Constraint("Horizontal", 37, 2, 56, 2),
    Sketcher.Constraint("Horizontal", 55, 2, 58, 2),
    Sketcher.Constraint("Horizontal", 21, 2, 60, 2),
    Sketcher.Constraint("Horizontal", 23, 2, 62, 2),
    Sketcher.Constraint("Horizontal", 17, 2, 64, 2),
    Sketcher.Constraint("Horizontal", 15, 2, 66, 2),
    Sketcher.Constraint("Horizontal", 65, 2, 68, 2),
    Sketcher.Constraint("Horizontal", 63, 2, 70, 2),
    Sketcher.Constraint("Vertical", 1, 2, 4, 2),
    Sketcher.Constraint("Vertical", 7, 2, 10, 2),
    Sketcher.Constraint("Vertical", 16, 2, 19, 2),
    Sketcher.Constraint("Vertical", 14, 2, 21, 2),
    Sketcher.Constraint("Vertical", 11, 2, 24, 2),
    Sketcher.Constraint("Vertical", 9, 2, 26, 2),
    Sketcher.Constraint("Vertical", 25, 2, 28, 2),
    Sketcher.Constraint("Vertical", 5, 2, 30, 2),
    Sketcher.Constraint("Vertical", 3, 2, 32, 2),
    Sketcher.Constraint("Vertical", 31, 2, 34, 2),
    Sketcher.Constraint("Vertical", 22, 2, 36, 2),
    Sketcher.Constraint("Vertical", 20, 2, 37, 2),
    Sketcher.Constraint("Vertical", 18, 2, 39, 2),
    Sketcher.Constraint("Vertical", 38, 2, 41, 2),
    Sketcher.Constraint("Vertical", 36, 2, 43, 2),
    Sketcher.Constraint("Vertical", 23, 2, 45, 2),
    Sketcher.Constraint("Vertical", 52, 2, 55, 2),
    Sketcher.Constraint("Vertical", 50, 2, 57, 2),
    Sketcher.Constraint("Vertical", 58, 2, 60, 2),
    Sketcher.Constraint("Vertical", 56, 2, 61, 2),
    Sketcher.Constraint("Vertical", 54, 2, 63, 2),
    Sketcher.Constraint("Vertical", 62, 2, 65, 2),
    Sketcher.Constraint("Vertical", 60, 2, 67, 2),
    Sketcher.Constraint("Vertical", 59, 2, 69, 2),
    Sketcher.Constraint("Equal", 4, 8),
    Sketcher.Constraint("Equal", 47, 49),
    Sketcher.Constraint("Equal", 43, 51),
    Sketcher.Constraint("Equal", 41, 53),
    Sketcher.Constraint("Equal", 71, 1),
    Sketcher.Constraint("Equal", 67, 3),
    Sketcher.Constraint("Equal", 65, 5),
    Sketcher.Constraint("Equal", 30, 12),
    Sketcher.Constraint("Equal", 34, 14),
    Sketcher.Constraint("Equal", 16, 20),
    Sketcher.Constraint("Equal", 11, 25),
    Sketcher.Constraint("Equal", 9, 27),
    Sketcher.Constraint("Equal", 7, 29),
    Sketcher.Constraint("Equal", 22, 36),
    Sketcher.Constraint("Equal", 18, 40),
    Sketcher.Constraint("Equal", 38, 42),
    Sketcher.Constraint("DistanceX", 13, 1, 13, 2, 4.0),
    Sketcher.Constraint("DistanceX", 17, 1, 17, 2, 10.0),
    Sketcher.Constraint("DistanceX", 0, 2, 0, 1, 4.2),
    Sketcher.Constraint("DistanceX", 2, 2, 2, 1, 1.7),
    Sketcher.Constraint("DistanceX", 15, 1, 15, 2, 2.8),
    Sketcher.Constraint("DistanceY", 36, 2, -1, 1, 169.764198),
    Sketcher.Constraint("DistanceX", -1, 1, 0, 2, 101.40457),
    Sketcher.Constraint("DistanceY", 12, 2, -1, 1, 60.72097),
    Sketcher.Constraint("DistanceY", 24, 2, -1, 1, 219.635812),
    Sketcher.Constraint("DistanceY", 0, 2, -1, 1, 4.949357),
    Sketcher.Constraint("DistanceX", -1, 1, 12, 2, 62.370562),
    Sketcher.Constraint("DistanceX", -1, 1, 48, 2, 144.638578),
])
pocket1 = body.newObject("PartDesign::Pocket", "Pocket")
pocket1.Profile = sketch2
pocket1.Type = "ThroughAll"

sketch3 = body.newObject("Sketcher::SketchObject", "Sketch002")
sketch3.Placement = App.Placement(Vector(7.362314, -20.245196, 0), App.Rotation(Vector(0.939787101, 0.341760449, 0), Vector(0, 0, 1), Vector(0.341760449, -0.939787101, 0), "ZXY"))
sketch3.addGeometry([
    Part.LineSegment(Vector(-91.9, 4.9, 0), Vector(-91.9, -0.1, 0)),
    Part.LineSegment(Vector(-91.9, -0.1, 0), Vector(-71.9, -0.1, 0)),
    Part.LineSegment(Vector(-71.9, -0.1, 0), Vector(-71.9, 4.9, 0)),
    Part.LineSegment(Vector(-71.9, 4.9, 0), Vector(-91.9, 4.9, 0)),
    Part.LineSegment(Vector(-135.1, 4.9, 0), Vector(-135.1, -0.1, 0)),
    Part.LineSegment(Vector(-135.1, -0.1, 0), Vector(-115.1, -0.1, 0)),
    Part.LineSegment(Vector(-115.1, -0.1, 0), Vector(-115.1, 4.9, 0)),
    Part.LineSegment(Vector(-115.1, 4.9, 0), Vector(-135.1, 4.9, 0)),
    Part.LineSegment(Vector(-62.4, 122.3, 0), Vector(-62.4, 102.3, 0)),
    Part.LineSegment(Vector(-62.4, 102.3, 0), Vector(-59.4, 102.3, 0)),
    Part.LineSegment(Vector(-59.4, 102.3, 0), Vector(-59.4, 122.3, 0)),
    Part.LineSegment(Vector(-59.4, 122.3, 0), Vector(-62.4, 122.3, 0)),
    Part.LineSegment(Vector(-62.4, 203.9, 0), Vector(-62.4, 183.9, 0)),
    Part.LineSegment(Vector(-62.4, 183.9, 0), Vector(-59.4, 183.9, 0)),
    Part.LineSegment(Vector(-59.4, 183.9, 0), Vector(-59.4, 203.9, 0)),
    Part.LineSegment(Vector(-59.4, 203.9, 0), Vector(-62.4, 203.9, 0)),
    Part.LineSegment(Vector(-91.9, 224.6, 0), Vector(-91.9, 219.6, 0)),
    Part.LineSegment(Vector(-91.9, 219.6, 0), Vector(-71.9, 219.6, 0)),
    Part.LineSegment(Vector(-71.9, 219.6, 0), Vector(-71.9, 224.6, 0)),
    Part.LineSegment(Vector(-71.9, 224.6, 0), Vector(-91.9, 224.6, 0)),
    Part.LineSegment(Vector(-135.1, 224.6, 0), Vector(-135.1, 219.6, 0)),
    Part.LineSegment(Vector(-135.1, 219.6, 0), Vector(-115.1, 219.6, 0)),
    Part.LineSegment(Vector(-115.1, 219.6, 0), Vector(-115.1, 224.6, 0)),
    Part.LineSegment(Vector(-115.1, 224.6, 0), Vector(-135.1, 224.6, 0)),
], False)
sketch3.addConstraint([
    Sketcher.Constraint("Coincident", 0, 2, 1, 1),
    Sketcher.Constraint("Coincident", 1, 2, 2, 1),
    Sketcher.Constraint("Coincident", 2, 2, 3, 1),
    Sketcher.Constraint("Coincident", 3, 2, 0, 1),
    Sketcher.Constraint("Coincident", 4, 2, 5, 1),
    Sketcher.Constraint("Coincident", 5, 2, 6, 1),
    Sketcher.Constraint("Coincident", 6, 2, 7, 1),
    Sketcher.Constraint("Coincident", 7, 2, 4, 1),
    Sketcher.Constraint("Coincident", 8, 2, 9, 1),
    Sketcher.Constraint("Coincident", 9, 2, 10, 1),
    Sketcher.Constraint("Coincident", 10, 2, 11, 1),
    Sketcher.Constraint("Coincident", 11, 2, 8, 1),
    Sketcher.Constraint("Coincident", 12, 2, 13, 1),
    Sketcher.Constraint("Coincident", 13, 2, 14, 1),
    Sketcher.Constraint("Coincident", 14, 2, 15, 1),
    Sketcher.Constraint("Coincident", 15, 2, 12, 1),
    Sketcher.Constraint("Coincident", 16, 2, 17, 1),
    Sketcher.Constraint("Coincident", 17, 2, 18, 1),
    Sketcher.Constraint("Coincident", 18, 2, 19, 1),
    Sketcher.Constraint("Coincident", 19, 2, 16, 1),
    Sketcher.Constraint("Coincident", 20, 2, 21, 1),
    Sketcher.Constraint("Coincident", 21, 2, 22, 1),
    Sketcher.Constraint("Coincident", 22, 2, 23, 1),
    Sketcher.Constraint("Coincident", 23, 2, 20, 1),
    Sketcher.Constraint("Vertical", 0),
    Sketcher.Constraint("Horizontal", 1),
    Sketcher.Constraint("Vertical", 2),
    Sketcher.Constraint("Horizontal", 3),
    Sketcher.Constraint("Vertical", 4),
    Sketcher.Constraint("Horizontal", 5),
    Sketcher.Constraint("Vertical", 6),
    Sketcher.Constraint("Horizontal", 7),
    Sketcher.Constraint("Vertical", 8),
    Sketcher.Constraint("Horizontal", 9),
    Sketcher.Constraint("Vertical", 10),
    Sketcher.Constraint("Horizontal", 11),
    Sketcher.Constraint("Vertical", 12),
    Sketcher.Constraint("Horizontal", 13),
    Sketcher.Constraint("Vertical", 14),
    Sketcher.Constraint("Horizontal", 15),
    Sketcher.Constraint("Vertical", 16),
    Sketcher.Constraint("Horizontal", 17),
    Sketcher.Constraint("Vertical", 18),
    Sketcher.Constraint("Horizontal", 19),
    Sketcher.Constraint("Vertical", 20),
    Sketcher.Constraint("Horizontal", 21),
    Sketcher.Constraint("Vertical", 22),
    Sketcher.Constraint("Horizontal", 23),
    Sketcher.Constraint("Horizontal", 1, 2, 4, 2),
    Sketcher.Constraint("Horizontal", 3, 2, 6, 2),
    Sketcher.Constraint("Horizontal", 17, 2, 20, 2),
    Sketcher.Constraint("Horizontal", 19, 2, 22, 2),
    Sketcher.Constraint("Vertical", 11, 2, 12, 2),
    Sketcher.Constraint("Vertical", 10, 2, 13, 2),
    Sketcher.Constraint("Vertical", 3, 2, 16, 2),
    Sketcher.Constraint("Vertical", 2, 2, 17, 2),
    Sketcher.Constraint("Vertical", 7, 2, 20, 2),
    Sketcher.Constraint("Vertical", 6, 2, 21, 2),
    Sketcher.Constraint("Equal", 3, 5),
    Sketcher.Constraint("Equal", 23, 8),
    Sketcher.Constraint("Equal", 10, 12),
    Sketcher.Constraint("Equal", 6, 16),
    Sketcher.Constraint("DistanceX", 1, 1, 1, 2, 20.0),
    Sketcher.Constraint("DistanceX", 9, 1, 9, 2, 3.0),
    Sketcher.Constraint("DistanceY", 0, 2, 0, 1, 5.0),
    Sketcher.Constraint("DistanceY", -1, 1, 16, 2, 219.635812),
    Sketcher.Constraint("DistanceX", 6, 2, 8, 2, 52.751012),
    Sketcher.Constraint("DistanceY", 11, 2, 12, 2, 61.557421),
    Sketcher.Constraint("DistanceY", 2, 2, 12, 2, 178.900648),
    Sketcher.Constraint("DistanceX", 0, 2, -1, 1, 91.887566),
    Sketcher.Constraint("DistanceY", 0, 2, -1, 1, 0.050643),
    Sketcher.Constraint("DistanceX", 4, 2, -1, 1, 135.121574),
])
pad2 = body.newObject("PartDesign::Pad", "Pad001")
pad2.Profile = sketch3
pad2.Length = 5
pad2.Reversed = True

doc.recompute()
